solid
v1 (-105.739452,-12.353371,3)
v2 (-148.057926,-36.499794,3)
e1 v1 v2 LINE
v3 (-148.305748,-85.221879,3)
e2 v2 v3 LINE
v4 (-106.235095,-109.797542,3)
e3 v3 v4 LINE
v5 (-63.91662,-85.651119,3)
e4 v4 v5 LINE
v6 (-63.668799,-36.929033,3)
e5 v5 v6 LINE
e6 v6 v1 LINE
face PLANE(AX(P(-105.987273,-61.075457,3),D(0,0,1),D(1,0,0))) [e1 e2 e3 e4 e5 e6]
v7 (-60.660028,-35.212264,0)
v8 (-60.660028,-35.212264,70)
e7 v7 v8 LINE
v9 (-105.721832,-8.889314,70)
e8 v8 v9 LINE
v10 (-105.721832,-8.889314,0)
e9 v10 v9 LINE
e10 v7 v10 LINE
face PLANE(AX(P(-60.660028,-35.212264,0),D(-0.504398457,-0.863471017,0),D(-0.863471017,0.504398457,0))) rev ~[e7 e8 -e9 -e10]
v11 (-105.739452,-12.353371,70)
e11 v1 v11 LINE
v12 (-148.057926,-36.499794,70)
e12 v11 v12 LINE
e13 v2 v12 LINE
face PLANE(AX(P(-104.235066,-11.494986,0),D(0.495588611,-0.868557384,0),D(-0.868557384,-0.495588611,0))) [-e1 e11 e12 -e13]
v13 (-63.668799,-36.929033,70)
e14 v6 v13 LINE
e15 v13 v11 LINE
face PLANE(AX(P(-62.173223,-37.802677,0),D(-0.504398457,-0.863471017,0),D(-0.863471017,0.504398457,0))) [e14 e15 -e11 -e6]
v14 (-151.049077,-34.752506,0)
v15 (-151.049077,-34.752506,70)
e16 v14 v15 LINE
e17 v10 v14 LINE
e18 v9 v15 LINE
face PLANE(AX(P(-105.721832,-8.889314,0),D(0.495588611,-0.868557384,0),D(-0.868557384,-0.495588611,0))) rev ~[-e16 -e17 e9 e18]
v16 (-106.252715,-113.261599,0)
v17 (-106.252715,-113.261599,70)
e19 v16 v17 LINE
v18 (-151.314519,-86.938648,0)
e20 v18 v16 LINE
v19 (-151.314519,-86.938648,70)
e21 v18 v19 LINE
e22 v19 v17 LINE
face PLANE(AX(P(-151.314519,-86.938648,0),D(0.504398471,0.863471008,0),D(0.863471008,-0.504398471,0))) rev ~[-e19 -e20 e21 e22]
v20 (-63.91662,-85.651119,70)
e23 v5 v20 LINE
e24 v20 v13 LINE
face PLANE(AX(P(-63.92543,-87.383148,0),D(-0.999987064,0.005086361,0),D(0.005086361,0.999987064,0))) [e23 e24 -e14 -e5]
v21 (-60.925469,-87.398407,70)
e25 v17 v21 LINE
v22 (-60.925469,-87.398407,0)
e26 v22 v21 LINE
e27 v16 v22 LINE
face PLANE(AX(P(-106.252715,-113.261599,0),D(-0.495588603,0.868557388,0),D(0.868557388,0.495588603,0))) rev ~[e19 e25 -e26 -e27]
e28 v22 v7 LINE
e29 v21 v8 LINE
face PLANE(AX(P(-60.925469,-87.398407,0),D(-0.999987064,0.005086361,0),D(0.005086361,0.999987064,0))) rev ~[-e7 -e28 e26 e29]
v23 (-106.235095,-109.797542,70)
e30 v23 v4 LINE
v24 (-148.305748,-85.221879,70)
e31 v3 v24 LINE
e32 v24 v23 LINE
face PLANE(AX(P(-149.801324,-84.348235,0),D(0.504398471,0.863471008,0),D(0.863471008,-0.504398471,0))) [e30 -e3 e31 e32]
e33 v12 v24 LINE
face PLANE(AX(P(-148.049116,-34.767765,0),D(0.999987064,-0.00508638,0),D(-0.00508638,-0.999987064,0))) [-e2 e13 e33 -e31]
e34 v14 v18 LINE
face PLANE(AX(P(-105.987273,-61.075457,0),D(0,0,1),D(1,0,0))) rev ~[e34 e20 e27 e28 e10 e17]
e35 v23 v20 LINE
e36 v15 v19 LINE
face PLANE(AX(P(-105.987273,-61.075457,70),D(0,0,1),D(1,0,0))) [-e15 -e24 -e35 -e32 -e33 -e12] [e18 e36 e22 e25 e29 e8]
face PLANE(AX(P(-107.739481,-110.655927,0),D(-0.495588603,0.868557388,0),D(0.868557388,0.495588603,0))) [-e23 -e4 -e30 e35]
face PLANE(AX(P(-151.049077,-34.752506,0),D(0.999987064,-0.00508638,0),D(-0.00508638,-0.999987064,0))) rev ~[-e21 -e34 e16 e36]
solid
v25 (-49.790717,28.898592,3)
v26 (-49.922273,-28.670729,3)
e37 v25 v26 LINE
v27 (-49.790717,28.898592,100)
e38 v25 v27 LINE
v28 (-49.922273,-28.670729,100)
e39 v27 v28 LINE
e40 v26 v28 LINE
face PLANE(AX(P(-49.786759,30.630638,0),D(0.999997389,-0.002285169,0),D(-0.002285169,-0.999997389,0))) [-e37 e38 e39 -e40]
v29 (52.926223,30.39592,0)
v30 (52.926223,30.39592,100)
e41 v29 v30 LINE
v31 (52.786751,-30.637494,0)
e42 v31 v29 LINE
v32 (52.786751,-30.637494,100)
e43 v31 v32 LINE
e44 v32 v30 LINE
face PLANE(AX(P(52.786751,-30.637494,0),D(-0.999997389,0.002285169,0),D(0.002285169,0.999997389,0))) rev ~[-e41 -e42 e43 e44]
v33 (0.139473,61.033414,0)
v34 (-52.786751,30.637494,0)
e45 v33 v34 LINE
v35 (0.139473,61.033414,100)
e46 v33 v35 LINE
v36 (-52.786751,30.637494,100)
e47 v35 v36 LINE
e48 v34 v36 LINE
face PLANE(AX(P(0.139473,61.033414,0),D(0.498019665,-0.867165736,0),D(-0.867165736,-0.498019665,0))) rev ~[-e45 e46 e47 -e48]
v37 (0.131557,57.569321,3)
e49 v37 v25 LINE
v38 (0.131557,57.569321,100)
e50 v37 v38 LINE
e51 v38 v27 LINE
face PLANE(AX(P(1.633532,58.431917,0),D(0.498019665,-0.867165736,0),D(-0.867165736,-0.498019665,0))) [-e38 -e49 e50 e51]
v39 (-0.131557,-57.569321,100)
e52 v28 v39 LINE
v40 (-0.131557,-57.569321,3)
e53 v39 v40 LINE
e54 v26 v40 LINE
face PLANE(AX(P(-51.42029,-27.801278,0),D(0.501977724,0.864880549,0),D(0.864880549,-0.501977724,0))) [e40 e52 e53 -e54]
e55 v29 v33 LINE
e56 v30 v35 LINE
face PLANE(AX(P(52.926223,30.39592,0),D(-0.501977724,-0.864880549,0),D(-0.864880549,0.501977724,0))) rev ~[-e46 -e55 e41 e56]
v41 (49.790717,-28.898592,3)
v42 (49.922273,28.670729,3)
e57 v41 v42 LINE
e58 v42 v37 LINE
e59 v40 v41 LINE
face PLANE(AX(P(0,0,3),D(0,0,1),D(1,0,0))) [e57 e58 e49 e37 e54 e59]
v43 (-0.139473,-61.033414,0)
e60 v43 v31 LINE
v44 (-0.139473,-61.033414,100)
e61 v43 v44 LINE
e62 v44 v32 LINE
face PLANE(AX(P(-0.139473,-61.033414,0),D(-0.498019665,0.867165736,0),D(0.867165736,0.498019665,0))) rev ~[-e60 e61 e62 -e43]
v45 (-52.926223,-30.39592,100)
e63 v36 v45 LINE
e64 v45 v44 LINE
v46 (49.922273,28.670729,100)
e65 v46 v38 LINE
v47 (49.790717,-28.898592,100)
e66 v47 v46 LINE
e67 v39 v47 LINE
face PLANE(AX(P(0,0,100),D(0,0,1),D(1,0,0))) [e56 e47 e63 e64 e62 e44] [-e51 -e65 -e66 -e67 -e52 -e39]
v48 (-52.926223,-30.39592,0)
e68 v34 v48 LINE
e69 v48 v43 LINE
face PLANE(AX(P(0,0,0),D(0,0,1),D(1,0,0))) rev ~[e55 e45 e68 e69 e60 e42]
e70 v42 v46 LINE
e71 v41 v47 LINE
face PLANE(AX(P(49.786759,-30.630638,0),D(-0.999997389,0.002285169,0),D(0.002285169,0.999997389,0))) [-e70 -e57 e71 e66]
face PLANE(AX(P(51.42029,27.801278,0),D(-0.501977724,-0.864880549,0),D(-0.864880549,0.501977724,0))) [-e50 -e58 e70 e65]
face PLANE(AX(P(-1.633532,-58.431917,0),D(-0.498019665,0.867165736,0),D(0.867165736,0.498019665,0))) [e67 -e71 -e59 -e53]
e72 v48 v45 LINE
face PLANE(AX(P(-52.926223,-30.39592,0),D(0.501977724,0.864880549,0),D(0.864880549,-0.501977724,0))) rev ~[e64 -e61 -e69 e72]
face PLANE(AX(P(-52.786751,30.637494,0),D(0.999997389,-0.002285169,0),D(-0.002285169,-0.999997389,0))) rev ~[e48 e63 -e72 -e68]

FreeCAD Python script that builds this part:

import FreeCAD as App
import Part
import Sketcher
Q = App.Units.Quantity


def faces_at(feature, points):
    """Names of the faces that lie closest to the given points."""
    faces = feature.Shape.Faces
    near = lambda p: min(range(len(faces)), key=lambda i: faces[i].distToShape(Part.Vertex(*p))[0])
    return sorted({f"Face{near(p) + 1}" for p in points})

doc = App.newDocument("Part")
body = doc.addObject("PartDesign::Body", "Body")

sketch1 = doc.addObject("Sketcher::SketchObject", "Sketch")
body.addObject(sketch1)
sketch1.AttachmentSupport = (doc.XY_Plane, [""])
sketch1.MapMode = "FlatFace"
sketch1.addGeometry([
    Part.LineSegment(App.Vector(0, -61, 0), App.Vector(53, -31, 0)),
    Part.LineSegment(App.Vector(53, -31, 0), App.Vector(53, 30, 0)),
    Part.LineSegment(App.Vector(53, 30, 0), App.Vector(0, 61, 0)),
    Part.LineSegment(App.Vector(0, 61, 0), App.Vector(-53, 31, 0)),
    Part.LineSegment(App.Vector(-53, 31, 0), App.Vector(-53, -30, 0)),
    Part.LineSegment(App.Vector(-53, -30, 0), App.Vector(0, -61, 0)),
], False)
sketch1.addConstraint([
    Sketcher.Constraint("Coincident", 0, 2, 1, 1),
    Sketcher.Constraint("Coincident", 1, 2, 2, 1),
    Sketcher.Constraint("Coincident", 2, 2, 3, 1),
    Sketcher.Constraint("Coincident", 3, 2, 4, 1),
    Sketcher.Constraint("Coincident", 4, 2, 5, 1),
    Sketcher.Constraint("Coincident", 5, 2, 0, 1),
    Sketcher.Constraint("Symmetric", 0, 2, 3, 2, -1, 1),
    Sketcher.Constraint("Symmetric", 1, 2, 4, 2, -1, 1),
    Sketcher.Constraint("Symmetric", 2, 2, 5, 2, -1, 1),
    Sketcher.Constraint("Equal", 0, 1),
    Sketcher.Constraint("Equal", 1, 2),
    Sketcher.Constraint("DistanceX", -1, 1, 0, 2, Q("52.786751 mm")),
    Sketcher.Constraint("DistanceY", -1, 1, 1, 2, Q("30.39592 mm")),
    Sketcher.Constraint("DistanceX", 0, 2, 1, 2, Q("0.139472 mm")),
    Sketcher.Constraint("DistanceX", 2, 2, 1, 2, Q("52.78675 mm")),
])
pad1 = doc.addObject("PartDesign::Pad", "Pad")
body.addObject(pad1)
pad1.Profile = sketch1
pad1.Length = 100
doc.recompute()

thickness = doc.addObject("PartDesign::Thickness", "Thickness")
body.addObject(thickness)
thickness.Base = (pad1, faces_at(pad1, [(0, 0, 100)]))
thickness.Value = 3
thickness.Reversed = True
thickness.Join = "Arc"
body2 = doc.addObject("PartDesign::Body", "Body001")

sketch2 = doc.addObject("Sketcher::SketchObject", "Sketch001")
body2.addObject(sketch2)
sketch2.AttachmentSupport = (doc.getObject("XY_Plane001"), [""])
sketch2.MapMode = "FlatFace"
sketch2.addGeometry([
    Part.LineSegment(App.Vector(-106, -113, 0), App.Vector(-61, -87, 0)),
    Part.LineSegment(App.Vector(-61, -87, 0), App.Vector(-61, -35, 0)),
    Part.LineSegment(App.Vector(-61, -35, 0), App.Vector(-106, -9, 0)),
    Part.LineSegment(App.Vector(-106, -9, 0), App.Vector(-151, -35, 0)),
    Part.LineSegment(App.Vector(-151, -35, 0), App.Vector(-151, -87, 0)),
    Part.LineSegment(App.Vector(-151, -87, 0), App.Vector(-106, -113, 0)),
], False)
sketch2.addConstraint([
    Sketcher.Constraint("Coincident", 0, 2, 1, 1),
    Sketcher.Constraint("Coincident", 1, 2, 2, 1),
    Sketcher.Constraint("Coincident", 2, 2, 3, 1),
    Sketcher.Constraint("Coincident", 3, 2, 4, 1),
    Sketcher.Constraint("Coincident", 4, 2, 5, 1),
    Sketcher.Constraint("Coincident", 5, 2, 0, 1),
    Sketcher.Constraint("Parallel", 0, 3),
    Sketcher.Constraint("Parallel", 1, 4),
    Sketcher.Constraint("Parallel", 2, 5),
    Sketcher.Constraint("Equal", 0, 1),
    Sketcher.Constraint("Equal", 1, 2),
    Sketcher.Constraint("Equal", 2, 3),
    Sketcher.Constraint("DistanceY", 5, 2, -1, 1, Q("113.261599 mm")),
    Sketcher.Constraint("DistanceY", 0, 2, 3, 2, Q("52.645901 mm")),
    Sketcher.Constraint("Distance", 1, Q("52.186818 mm")),
    Sketcher.Constraint("DistanceX", 0, 2, -1, 1, Q("60.925469 mm")),
    Sketcher.Constraint("DistanceX", 4, 2, -1, 1, Q("151.314519 mm")),
    Sketcher.Constraint("DistanceX", 0, 2, 1, 2, Q("0.265441 mm")),
])
pad2 = doc.addObject("PartDesign::Pad", "Pad001")
body2.addObject(pad2)
pad2.Profile = sketch2
pad2.Length = 70
doc.recompute()

thickness2 = doc.addObject("PartDesign::Thickness", "Thickness001")
body2.addObject(thickness2)
thickness2.Base = (pad2, faces_at(pad2, [(-105.987, -61.075, 70)]))
thickness2.Value = 3
thickness2.Reversed = True
thickness2.Join = "Arc"

doc.recompute()
